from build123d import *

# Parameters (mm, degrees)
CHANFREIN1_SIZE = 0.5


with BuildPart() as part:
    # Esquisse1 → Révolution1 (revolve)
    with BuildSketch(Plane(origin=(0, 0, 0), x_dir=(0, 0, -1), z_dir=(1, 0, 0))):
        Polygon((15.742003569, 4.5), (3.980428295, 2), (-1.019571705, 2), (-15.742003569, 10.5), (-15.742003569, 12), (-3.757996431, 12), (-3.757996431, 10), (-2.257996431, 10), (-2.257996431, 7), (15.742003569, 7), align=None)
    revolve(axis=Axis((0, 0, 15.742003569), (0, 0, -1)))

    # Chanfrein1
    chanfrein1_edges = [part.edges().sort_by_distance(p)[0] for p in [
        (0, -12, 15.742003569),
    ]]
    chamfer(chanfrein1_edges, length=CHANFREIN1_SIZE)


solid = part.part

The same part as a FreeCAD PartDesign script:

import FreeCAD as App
import Part
import Sketcher
Q = App.Units.Quantity


def edges_at(feature, points):
    """Names of the edges that pass closest to the given points."""
    edges = feature.Shape.Edges
    near = lambda p: min(range(len(edges)), key=lambda i: edges[i].distToShape(Part.Vertex(*p))[0])
    return sorted({f"Edge{near(p) + 1}" for p in points})

doc = App.newDocument("Part")
params = doc.addObject("Spreadsheet::Sheet", "Params")
for row, (alias, value) in enumerate([
    ("sketch1_width", "3 mm"),
    ("sketch1_width2", "2 mm"),
    ("sketch1_height", "18 mm"),
    ("sketch1_height2", "5 mm"),
    ("sketch1_length", "17 mm"),
    ("revolution_angle", "360 deg"),
    ("chamfer_size", "0.5 mm"),
], start=1):
    params.set(f"A{row}", alias)
    params.set(f"B{row}", "=" + value)
    params.setAlias(f"B{row}", alias)

body = doc.addObject("PartDesign::Body", "Body")

# Sketch on YZ plane
sketch1 = doc.addObject("Sketcher::SketchObject", "Sketch")
body.addObject(sketch1)
sketch1.AttachmentSupport = (doc.YZ_Plane, [""])
sketch1.MapMode = "FlatFace"
sketch1.addGeometry(Part.LineSegment(App.Vector(2, -4, 0), App.Vector(4.5, -15.7, 0)), False)
sketch1.addGeometry(Part.LineSegment(App.Vector(4.5, -15.7, 0), App.Vector(7, -15.7, 0)), False)
sketch1.addGeometry(Part.LineSegment(App.Vector(7, -15.7, 0), App.Vector(7, 2.3, 0)), False)
sketch1.addGeometry(Part.LineSegment(App.Vector(7, 2.3, 0), App.Vector(10, 2.3, 0)), False)
sketch1.addGeometry(Part.LineSegment(App.Vector(10, 2.3, 0), App.Vector(10, 3.8, 0)), False)
sketch1.addGeometry(Part.LineSegment(App.Vector(10, 3.8, 0), App.Vector(12, 3.8, 0)), False)
sketch1.addGeometry(Part.LineSegment(App.Vector(12, 3.8, 0), App.Vector(12, 15.7, 0)), False)
sketch1.addGeometry(Part.LineSegment(App.Vector(12, 15.7, 0), App.Vector(10.5, 15.7, 0)), False)
sketch1.addGeometry(Part.LineSegment(App.Vector(10.5, 15.7, 0), App.Vector(2, 1, 0)), False)
sketch1.addGeometry(Part.LineSegment(App.Vector(2, 1, 0), App.Vector(2, -4, 0)), False)
sketch1.addConstraint(Sketcher.Constraint("Coincident", 0, 2, 1, 1))
sketch1.addConstraint(Sketcher.Constraint("Coincident", 1, 2, 2, 1))
sketch1.addConstraint(Sketcher.Constraint("Coincident", 2, 2, 3, 1))
sketch1.addConstraint(Sketcher.Constraint("Coincident", 3, 2, 4, 1))
sketch1.addConstraint(Sketcher.Constraint("Coincident", 4, 2, 5, 1))
sketch1.addConstraint(Sketcher.Constraint("Coincident", 5, 2, 6, 1))
sketch1.addConstraint(Sketcher.Constraint("Coincident", 6, 2, 7, 1))
sketch1.addConstraint(Sketcher.Constraint("Coincident", 7, 2, 8, 1))
sketch1.addConstraint(Sketcher.Constraint("Coincident", 8, 2, 9, 1))
sketch1.addConstraint(Sketcher.Constraint("Coincident", 9, 2, 0, 1))
sketch1.addConstraint(Sketcher.Constraint("Horizontal", 1))
sketch1.addConstraint(Sketcher.Constraint("Vertical", 2))
sketch1.addConstraint(Sketcher.Constraint("Horizontal", 3))
sketch1.addConstraint(Sketcher.Constraint("Vertical", 4))
sketch1.addConstraint(Sketcher.Constraint("Horizontal", 5))
sketch1.addConstraint(Sketcher.Constraint("Vertical", 6))
sketch1.addConstraint(Sketcher.Constraint("Horizontal", 7))
sketch1.addConstraint(Sketcher.Constraint("Vertical", 9))
sketch1.addConstraint(Sketcher.Constraint("Equal", 7, 4))
sketch1.addConstraint(Sketcher.Constraint("DistanceX", 3, 1, 3, 2, Q("3 mm")))
sketch1.addConstraint(Sketcher.Constraint("DistanceX", 5, 1, 5, 2, Q("2 mm")))
sketch1.addConstraint(Sketcher.Constraint("DistanceY", 2, 1, 2, 2, Q("18 mm")))
sketch1.addConstraint(Sketcher.Constraint("DistanceY", 9, 2, 9, 1, Q("5 mm")))
sketch1.addConstraint(Sketcher.Constraint("Angle", 0, Q("-78 deg")))
sketch1.addConstraint(Sketcher.Constraint("Angle", 8, Q("-120 deg")))
sketch1.addConstraint(Sketcher.Constraint("Distance", 8, Q("17 mm")))
sketch1.addConstraint(Sketcher.Constraint("DistanceX", 1, 1, 1, 2, Q("2.5 mm")))
sketch1.addConstraint(Sketcher.Constraint("DistanceX", 7, 2, 7, 1, Q("1.5 mm")))
sketch1.addConstraint(Sketcher.Constraint("DistanceX", -1, 1, 1, 2, Q("7 mm")))
sketch1.addConstraint(Sketcher.Constraint("DistanceY", -1, 1, 8, 2, Q("1.019572 mm")))
sketch1.setExpression("Constraints[19]", "Params.sketch1_width")
sketch1.setExpression("Constraints[20]", "Params.sketch1_width2")
sketch1.setExpression("Constraints[21]", "Params.sketch1_height")
sketch1.setExpression("Constraints[22]", "Params.sketch1_height2")
sketch1.setExpression("Constraints[25]", "Params.sketch1_length")
revolution = doc.addObject("PartDesign::Revolution", "Revolution")
body.addObject(revolution)
revolution.Profile = sketch1
revolution.ReferenceAxis = (sketch1, ["V_Axis"])
revolution.setExpression("Angle", "Params.revolution_angle")
doc.recompute()

chamfer = doc.addObject("PartDesign::Chamfer", "Chamfer")
body.addObject(chamfer)
chamfer.Base = (revolution, edges_at(revolution, [(0, -12, 15.742)]))
chamfer.setExpression("Size", "Params.chamfer_size")

doc.recompute()
